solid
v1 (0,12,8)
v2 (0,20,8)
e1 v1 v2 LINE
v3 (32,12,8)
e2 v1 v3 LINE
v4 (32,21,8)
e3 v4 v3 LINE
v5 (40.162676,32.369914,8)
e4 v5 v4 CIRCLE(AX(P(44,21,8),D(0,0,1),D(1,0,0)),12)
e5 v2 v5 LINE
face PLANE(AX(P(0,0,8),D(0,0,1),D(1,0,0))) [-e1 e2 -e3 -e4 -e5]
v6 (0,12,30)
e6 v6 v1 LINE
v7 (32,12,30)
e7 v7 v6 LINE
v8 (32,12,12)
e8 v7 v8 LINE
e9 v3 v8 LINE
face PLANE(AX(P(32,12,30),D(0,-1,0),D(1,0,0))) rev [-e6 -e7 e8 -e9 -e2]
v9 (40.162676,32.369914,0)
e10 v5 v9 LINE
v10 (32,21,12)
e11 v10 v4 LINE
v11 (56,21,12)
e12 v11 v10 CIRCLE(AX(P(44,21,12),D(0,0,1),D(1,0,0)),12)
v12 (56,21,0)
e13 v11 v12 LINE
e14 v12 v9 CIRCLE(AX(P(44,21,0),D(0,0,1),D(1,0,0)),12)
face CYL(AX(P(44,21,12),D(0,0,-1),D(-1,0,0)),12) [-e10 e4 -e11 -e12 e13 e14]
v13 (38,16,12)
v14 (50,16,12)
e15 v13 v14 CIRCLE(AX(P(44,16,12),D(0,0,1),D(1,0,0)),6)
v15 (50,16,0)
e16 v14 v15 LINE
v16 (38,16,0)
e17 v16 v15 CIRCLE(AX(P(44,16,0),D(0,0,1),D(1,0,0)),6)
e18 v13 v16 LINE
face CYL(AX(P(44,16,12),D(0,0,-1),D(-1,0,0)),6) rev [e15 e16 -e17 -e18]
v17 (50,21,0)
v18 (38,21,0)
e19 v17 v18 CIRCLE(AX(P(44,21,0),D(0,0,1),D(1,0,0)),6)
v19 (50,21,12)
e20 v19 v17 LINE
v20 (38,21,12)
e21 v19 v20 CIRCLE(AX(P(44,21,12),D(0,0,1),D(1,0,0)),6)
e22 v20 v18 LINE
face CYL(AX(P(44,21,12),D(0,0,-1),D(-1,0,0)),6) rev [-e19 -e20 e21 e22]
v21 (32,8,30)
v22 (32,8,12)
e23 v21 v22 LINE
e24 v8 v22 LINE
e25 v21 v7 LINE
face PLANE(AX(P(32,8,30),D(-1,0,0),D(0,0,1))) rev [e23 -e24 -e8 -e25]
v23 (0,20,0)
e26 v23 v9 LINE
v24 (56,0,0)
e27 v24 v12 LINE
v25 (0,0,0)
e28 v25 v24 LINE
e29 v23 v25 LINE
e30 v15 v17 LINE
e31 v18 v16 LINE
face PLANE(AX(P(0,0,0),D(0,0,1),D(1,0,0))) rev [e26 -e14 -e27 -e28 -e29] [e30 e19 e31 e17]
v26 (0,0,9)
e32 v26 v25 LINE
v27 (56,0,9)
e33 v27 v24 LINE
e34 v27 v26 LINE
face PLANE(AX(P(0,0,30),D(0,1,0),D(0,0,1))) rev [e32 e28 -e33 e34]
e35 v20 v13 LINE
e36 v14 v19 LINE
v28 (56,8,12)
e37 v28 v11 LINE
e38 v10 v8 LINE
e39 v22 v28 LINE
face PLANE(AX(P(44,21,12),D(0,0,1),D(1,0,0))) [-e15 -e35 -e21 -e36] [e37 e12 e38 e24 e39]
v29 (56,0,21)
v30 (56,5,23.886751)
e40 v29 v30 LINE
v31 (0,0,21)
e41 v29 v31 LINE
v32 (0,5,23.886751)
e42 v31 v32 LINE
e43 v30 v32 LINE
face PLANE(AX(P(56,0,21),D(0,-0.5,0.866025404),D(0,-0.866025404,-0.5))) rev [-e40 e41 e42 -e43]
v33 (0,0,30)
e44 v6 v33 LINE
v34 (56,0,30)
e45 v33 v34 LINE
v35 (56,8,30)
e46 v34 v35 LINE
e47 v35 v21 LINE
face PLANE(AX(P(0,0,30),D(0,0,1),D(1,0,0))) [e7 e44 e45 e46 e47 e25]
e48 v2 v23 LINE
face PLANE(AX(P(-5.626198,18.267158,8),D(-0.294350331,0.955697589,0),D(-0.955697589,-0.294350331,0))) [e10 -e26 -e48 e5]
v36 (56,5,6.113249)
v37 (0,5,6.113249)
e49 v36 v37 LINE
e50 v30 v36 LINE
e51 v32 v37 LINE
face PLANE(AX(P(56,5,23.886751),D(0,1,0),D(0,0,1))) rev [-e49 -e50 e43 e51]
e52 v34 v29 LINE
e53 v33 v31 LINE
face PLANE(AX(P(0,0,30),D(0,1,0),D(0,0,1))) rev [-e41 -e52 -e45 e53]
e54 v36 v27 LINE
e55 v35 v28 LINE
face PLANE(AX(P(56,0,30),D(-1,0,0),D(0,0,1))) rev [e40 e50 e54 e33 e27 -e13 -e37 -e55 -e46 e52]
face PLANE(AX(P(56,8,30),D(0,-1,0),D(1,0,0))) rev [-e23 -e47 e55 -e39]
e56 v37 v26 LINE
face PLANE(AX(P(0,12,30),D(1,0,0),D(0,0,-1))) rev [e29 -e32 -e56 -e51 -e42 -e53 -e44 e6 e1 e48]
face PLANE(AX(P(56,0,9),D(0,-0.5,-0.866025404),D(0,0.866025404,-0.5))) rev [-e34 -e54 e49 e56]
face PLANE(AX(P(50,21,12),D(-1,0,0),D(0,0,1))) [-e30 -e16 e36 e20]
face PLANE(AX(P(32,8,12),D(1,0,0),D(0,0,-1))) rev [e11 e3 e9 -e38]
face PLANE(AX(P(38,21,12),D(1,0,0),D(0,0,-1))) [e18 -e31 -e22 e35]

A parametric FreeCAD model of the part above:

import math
import FreeCAD as App
import Part
import Sketcher

V = App.Vector
Q = App.Units.Quantity

doc = App.newDocument("Part")
body = doc.addObject("PartDesign::Body", "Body")

# Sketch on XY plane
sketch1 = body.newObject("Sketcher::SketchObject", "Sketch")
sketch1.AttachmentSupport = (doc.getObject("XY_Plane"), [""])
sketch1.MapMode = "FlatFace"
sketch1.addGeometry(Part.LineSegment(V(0, 0, 0), V(56, 0, 0)), False)
sketch1.addGeometry(Part.LineSegment(V(56, 0, 0), V(56, 8, 0)), False)
sketch1.addGeometry(Part.LineSegment(V(56, 8, 0), V(32, 8, 0)), False)
sketch1.addGeometry(Part.LineSegment(V(32, 8, 0), V(32, 12, 0)), False)
sketch1.addGeometry(Part.LineSegment(V(32, 12, 0), V(0, 12, 0)), False)
sketch1.addGeometry(Part.LineSegment(V(0, 12, 0), V(0, 0, 0)), False)
sketch1.addConstraint(Sketcher.Constraint("Coincident", 0, 2, 1, 1))
sketch1.addConstraint(Sketcher.Constraint("Coincident", 1, 2, 2, 1))
sketch1.addConstraint(Sketcher.Constraint("Coincident", 2, 2, 3, 1))
sketch1.addConstraint(Sketcher.Constraint("Coincident", 3, 2, 4, 1))
sketch1.addConstraint(Sketcher.Constraint("Coincident", 4, 2, 5, 1))
sketch1.addConstraint(Sketcher.Constraint("Coincident", 5, 2, 0, 1))
sketch1.addConstraint(Sketcher.Constraint("Horizontal", 0))
sketch1.addConstraint(Sketcher.Constraint("Vertical", 1))
sketch1.addConstraint(Sketcher.Constraint("Horizontal", 2))
sketch1.addConstraint(Sketcher.Constraint("Vertical", 3))
sketch1.addConstraint(Sketcher.Constraint("Horizontal", 4))
sketch1.addConstraint(Sketcher.Constraint("Vertical", 5))
sketch1.addConstraint(Sketcher.Constraint("Coincident", 5, 2, -1, 1))
sketch1.addConstraint(Sketcher.Constraint("DistanceX", 0, 1, 0, 2, 56.0))
sketch1.addConstraint(Sketcher.Constraint("DistanceX", 2, 2, 2, 1, 24.0))
sketch1.addConstraint(Sketcher.Constraint("DistanceY", 1, 1, 1, 2, 8.0))
sketch1.addConstraint(Sketcher.Constraint("DistanceY", 3, 1, 3, 2, 4.0))
pad1 = body.newObject("PartDesign::Pad", "Pad")
pad1.Profile = sketch1
pad1.Length = 30

# Sketch on XY plane
sketch2 = body.newObject("Sketcher::SketchObject", "Sketch001")
sketch2.AttachmentSupport = (doc.getObject("XY_Plane"), [""])
sketch2.MapMode = "FlatFace"
sketch2.addGeometry(Part.LineSegment(V(32, 21, 0), V(32, 8, 0)), False)
sketch2.addGeometry(Part.LineSegment(V(32, 8, 0), V(56, 8, 0)), False)
sketch2.addGeometry(Part.LineSegment(V(56, 8, 0), V(56, 21, 0)), False)
sketch2.addGeometry(Part.ArcOfCircle(Part.Circle(V(44, 21, 0), V(0, 0, 1), 12), math.radians(0), math.radians(180)), False)
sketch2.addGeometry(Part.LineSegment(V(50, 21, 0), V(50, 16, 0)), False)
sketch2.addGeometry(Part.ArcOfCircle(Part.Circle(V(44, 16, 0), V(0, 0, 1), 6), math.radians(180), math.radians(360)), False)
sketch2.addGeometry(Part.LineSegment(V(38, 16, 0), V(38, 21, 0)), False)
sketch2.addGeometry(Part.ArcOfCircle(Part.Circle(V(44, 21, 0), V(0, 0, 1), 6), math.radians(0), math.radians(180)), False)
sketch2.addConstraint(Sketcher.Constraint("Coincident", 0, 2, 1, 1))
sketch2.addConstraint(Sketcher.Constraint("Coincident", 1, 2, 2, 1))
sketch2.addConstraint(Sketcher.Constraint("Tangent", 2, 2, 3, 1))
sketch2.addConstraint(Sketcher.Constraint("Tangent", 3, 2, 0, 1))
sketch2.addConstraint(Sketcher.Constraint("Tangent", 4, 2, 5, 2))
sketch2.addConstraint(Sketcher.Constraint("Tangent", 5, 1, 6, 1))
sketch2.addConstraint(Sketcher.Constraint("Tangent", 6, 2, 7, 2))
sketch2.addConstraint(Sketcher.Constraint("Tangent", 7, 1, 4, 1))
sketch2.addConstraint(Sketcher.Constraint("Vertical", 0))
sketch2.addConstraint(Sketcher.Constraint("Horizontal", 1))
sketch2.addConstraint(Sketcher.Constraint("Vertical", 2))
sketch2.addConstraint(Sketcher.Constraint("Vertical", 4))
sketch2.addConstraint(Sketcher.Constraint("Vertical", 6))
sketch2.addConstraint(Sketcher.Constraint("Coincident", 7, 3, 3, 3))
sketch2.addConstraint(Sketcher.Constraint("Radius", 3, 12.0))
sketch2.addConstraint(Sketcher.Constraint("Radius", 5, 6.0))
sketch2.addConstraint(Sketcher.Constraint("DistanceY", 0, 2, 0, 1, 13.0))
sketch2.addConstraint(Sketcher.Constraint("DistanceY", 4, 2, 4, 1, 5.0))
sketch2.addConstraint(Sketcher.Constraint("DistanceX", -1, 1, 3, 3, 44.0))
sketch2.addConstraint(Sketcher.Constraint("DistanceY", -1, 1, 3, 3, 21.0))
pad2 = body.newObject("PartDesign::Pad", "Pad001")
pad2.Profile = sketch2
pad2.Length = 12

# Sketch on XY plane
sketch3 = body.newObject("Sketcher::SketchObject", "Sketch002")
sketch3.AttachmentSupport = (doc.getObject("XY_Plane"), [""])
sketch3.MapMode = "FlatFace"
sketch3.addGeometry(Part.LineSegment(V(0, 20, 0), V(0, 12, 0)), False)
sketch3.addGeometry(Part.LineSegment(V(0, 12, 0), V(32, 12, 0)), False)
sketch3.addGeometry(Part.LineSegment(V(32, 12, 0), V(32, 21, 0)), False)
sketch3.addGeometry(Part.ArcOfCircle(Part.Circle(V(44, 21, 0), V(0, 0, 1), 12), math.radians(108.649441), math.radians(180)), False)
sketch3.addGeometry(Part.LineSegment(V(40.162676, 32.369914, 0), V(0, 20, 0)), False)
sketch3.addConstraint(Sketcher.Constraint("Coincident", 0, 2, 1, 1))
sketch3.addConstraint(Sketcher.Constraint("Coincident", 1, 2, 2, 1))
sketch3.addConstraint(Sketcher.Constraint("Tangent", 2, 2, 3, 2))
sketch3.addConstraint(Sketcher.Constraint("Coincident", 3, 1, 4, 1))
sketch3.addConstraint(Sketcher.Constraint("Coincident", 4, 2, 0, 1))
sketch3.addConstraint(Sketcher.Constraint("Vertical", 0))
sketch3.addConstraint(Sketcher.Constraint("Horizontal", 1))
sketch3.addConstraint(Sketcher.Constraint("Vertical", 2))
sketch3.addConstraint(Sketcher.Constraint("PointOnObject", 0, 2, -2))
sketch3.addConstraint(Sketcher.Constraint("Radius", 3, 12.0))
sketch3.addConstraint(Sketcher.Constraint("DistanceX", 1, 1, 1, 2, 32.0))
sketch3.addConstraint(Sketcher.Constraint("DistanceY", 0, 2, 0, 1, 8.0))
sketch3.addConstraint(Sketcher.Constraint("DistanceY", 2, 1, 2, 2, 9.0))
sketch3.addConstraint(Sketcher.Constraint("DistanceY", -1, 1, 3, 3, 21.0))
sketch3.addConstraint(Sketcher.Constraint("Distance", 4, 42.024461))
pad3 = body.newObject("PartDesign::Pad", "Pad002")
pad3.Profile = sketch3
pad3.Length = 8

# Sketch on YZ plane
sketch4 = body.newObject("Sketcher::SketchObject", "Sketch003")
sketch4.AttachmentSupport = (doc.getObject("YZ_Plane"), [""])
sketch4.MapMode = "FlatFace"
sketch4.addGeometry(Part.LineSegment(V(0, 9, 0), V(0, 21, 0)), False)
sketch4.addGeometry(Part.LineSegment(V(0, 21, 0), V(5, 23.886751, 0)), False)
sketch4.addGeometry(Part.LineSegment(V(5, 23.886751, 0), V(5, 6.113249, 0)), False)
sketch4.addGeometry(Part.LineSegment(V(5, 6.113249, 0), V(0, 9, 0)), False)
sketch4.addConstraint(Sketcher.Constraint("Coincident", 0, 2, 1, 1))
sketch4.addConstraint(Sketcher.Constraint("Coincident", 1, 2, 2, 1))
sketch4.addConstraint(Sketcher.Constraint("Coincident", 2, 2, 3, 1))
sketch4.addConstraint(Sketcher.Constraint("Coincident", 3, 2, 0, 1))
sketch4.addConstraint(Sketcher.Constraint("Vertical", 0))
sketch4.addConstraint(Sketcher.Constraint("Vertical", 2))
sketch4.addConstraint(Sketcher.Constraint("PointOnObject", 0, 2, -2))
sketch4.addConstraint(Sketcher.Constraint("Equal", 1, 3))
sketch4.addConstraint(Sketcher.Constraint("DistanceY", 0, 1, 0, 2, 12.0))
sketch4.addConstraint(Sketcher.Constraint("Angle", 1, Q("30 deg")))
sketch4.addConstraint(Sketcher.Constraint("DistanceY", -1, 1, 0, 2, 21.0))
sketch4.addConstraint(Sketcher.Constraint("DistanceX", -1, 1, 1, 2, 5.0))
pocket1 = body.newObject("PartDesign::Pocket", "Pocket")
pocket1.Profile = sketch4
pocket1.Type = "ThroughAll"
pocket1.Midplane = True

doc.recompute()
